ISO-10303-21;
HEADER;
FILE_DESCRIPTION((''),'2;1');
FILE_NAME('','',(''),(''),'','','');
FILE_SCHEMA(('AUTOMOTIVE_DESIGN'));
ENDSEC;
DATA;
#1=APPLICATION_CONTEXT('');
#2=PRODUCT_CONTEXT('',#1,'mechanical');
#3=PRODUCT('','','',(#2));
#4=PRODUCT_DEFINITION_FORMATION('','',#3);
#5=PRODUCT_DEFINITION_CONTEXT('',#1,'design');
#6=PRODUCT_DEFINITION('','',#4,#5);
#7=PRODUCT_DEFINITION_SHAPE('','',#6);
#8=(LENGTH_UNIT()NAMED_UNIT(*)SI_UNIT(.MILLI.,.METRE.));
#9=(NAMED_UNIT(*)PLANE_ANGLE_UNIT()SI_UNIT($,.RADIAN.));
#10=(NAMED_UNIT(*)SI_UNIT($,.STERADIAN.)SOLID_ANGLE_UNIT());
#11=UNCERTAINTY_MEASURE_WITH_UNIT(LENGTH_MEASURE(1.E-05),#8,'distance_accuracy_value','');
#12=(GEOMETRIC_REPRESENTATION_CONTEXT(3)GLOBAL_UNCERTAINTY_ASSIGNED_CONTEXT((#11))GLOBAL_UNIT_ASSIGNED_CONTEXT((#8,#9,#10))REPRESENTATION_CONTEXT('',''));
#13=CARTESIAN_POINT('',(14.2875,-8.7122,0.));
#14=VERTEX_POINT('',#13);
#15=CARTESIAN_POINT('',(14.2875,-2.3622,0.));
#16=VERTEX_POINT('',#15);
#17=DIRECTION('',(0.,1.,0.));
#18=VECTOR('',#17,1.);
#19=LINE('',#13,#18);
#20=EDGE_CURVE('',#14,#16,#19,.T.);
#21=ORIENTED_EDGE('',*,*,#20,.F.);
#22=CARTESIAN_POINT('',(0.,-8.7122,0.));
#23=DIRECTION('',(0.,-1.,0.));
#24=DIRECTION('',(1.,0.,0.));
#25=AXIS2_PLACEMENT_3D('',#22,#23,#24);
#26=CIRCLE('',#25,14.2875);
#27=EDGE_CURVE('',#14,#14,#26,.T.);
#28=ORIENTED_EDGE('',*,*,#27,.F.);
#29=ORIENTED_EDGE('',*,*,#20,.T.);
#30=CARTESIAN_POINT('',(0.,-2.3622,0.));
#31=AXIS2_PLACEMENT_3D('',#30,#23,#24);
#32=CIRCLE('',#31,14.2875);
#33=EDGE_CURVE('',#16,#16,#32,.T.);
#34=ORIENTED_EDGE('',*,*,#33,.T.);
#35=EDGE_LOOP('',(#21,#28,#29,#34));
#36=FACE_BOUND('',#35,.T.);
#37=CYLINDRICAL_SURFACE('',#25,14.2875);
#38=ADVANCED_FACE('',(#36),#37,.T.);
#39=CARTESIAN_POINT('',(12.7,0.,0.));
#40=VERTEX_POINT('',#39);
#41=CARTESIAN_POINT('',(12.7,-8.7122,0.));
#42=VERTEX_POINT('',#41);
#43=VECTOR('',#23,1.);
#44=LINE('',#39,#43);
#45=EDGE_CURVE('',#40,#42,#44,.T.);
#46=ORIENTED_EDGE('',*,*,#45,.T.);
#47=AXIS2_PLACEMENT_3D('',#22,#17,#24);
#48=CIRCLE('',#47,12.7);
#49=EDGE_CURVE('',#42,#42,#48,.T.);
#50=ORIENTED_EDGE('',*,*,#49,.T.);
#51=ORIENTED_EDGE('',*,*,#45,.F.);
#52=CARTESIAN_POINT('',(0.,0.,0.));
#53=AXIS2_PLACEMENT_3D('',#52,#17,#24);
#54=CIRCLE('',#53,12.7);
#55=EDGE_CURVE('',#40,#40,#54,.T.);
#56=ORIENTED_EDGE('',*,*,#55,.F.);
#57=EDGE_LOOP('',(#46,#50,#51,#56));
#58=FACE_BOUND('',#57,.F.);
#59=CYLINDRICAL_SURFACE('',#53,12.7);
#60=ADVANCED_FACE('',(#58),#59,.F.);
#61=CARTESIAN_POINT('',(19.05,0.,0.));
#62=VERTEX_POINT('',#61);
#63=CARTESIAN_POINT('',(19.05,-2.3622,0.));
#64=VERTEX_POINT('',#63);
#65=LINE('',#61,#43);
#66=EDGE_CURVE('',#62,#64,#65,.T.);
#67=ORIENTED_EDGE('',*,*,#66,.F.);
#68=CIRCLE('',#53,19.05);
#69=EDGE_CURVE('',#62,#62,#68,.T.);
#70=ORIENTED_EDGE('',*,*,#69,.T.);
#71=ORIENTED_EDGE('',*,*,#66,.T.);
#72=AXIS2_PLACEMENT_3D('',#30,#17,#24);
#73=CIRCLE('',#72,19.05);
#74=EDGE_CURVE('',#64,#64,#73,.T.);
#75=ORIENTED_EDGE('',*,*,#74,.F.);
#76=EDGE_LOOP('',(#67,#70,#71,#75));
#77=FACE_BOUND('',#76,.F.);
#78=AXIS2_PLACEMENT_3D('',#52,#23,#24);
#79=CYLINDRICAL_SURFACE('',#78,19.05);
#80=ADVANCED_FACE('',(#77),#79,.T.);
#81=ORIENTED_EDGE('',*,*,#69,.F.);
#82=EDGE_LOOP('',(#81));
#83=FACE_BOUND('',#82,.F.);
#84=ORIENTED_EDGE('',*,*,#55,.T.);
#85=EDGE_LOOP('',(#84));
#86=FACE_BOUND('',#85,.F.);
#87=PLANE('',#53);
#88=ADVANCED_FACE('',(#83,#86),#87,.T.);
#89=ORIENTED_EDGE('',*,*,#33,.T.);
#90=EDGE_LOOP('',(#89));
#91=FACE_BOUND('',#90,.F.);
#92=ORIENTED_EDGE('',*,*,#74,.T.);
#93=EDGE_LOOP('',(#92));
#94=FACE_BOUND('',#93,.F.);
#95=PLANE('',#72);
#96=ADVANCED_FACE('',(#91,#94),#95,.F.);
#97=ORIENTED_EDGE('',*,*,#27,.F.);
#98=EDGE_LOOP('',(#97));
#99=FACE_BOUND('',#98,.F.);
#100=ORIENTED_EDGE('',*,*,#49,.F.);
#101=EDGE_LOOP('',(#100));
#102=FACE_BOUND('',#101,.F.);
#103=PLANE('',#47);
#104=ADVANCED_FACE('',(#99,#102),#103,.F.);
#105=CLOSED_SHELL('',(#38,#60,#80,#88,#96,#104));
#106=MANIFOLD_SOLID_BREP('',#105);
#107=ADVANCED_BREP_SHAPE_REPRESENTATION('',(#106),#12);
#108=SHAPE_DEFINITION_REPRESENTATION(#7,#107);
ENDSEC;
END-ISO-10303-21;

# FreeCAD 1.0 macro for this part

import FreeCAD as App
import Part
import Sketcher
Q = App.Units.Quantity


def add_polygon(sketch, points):
    """Adds a closed chain of lines whose ends are joined by coincident constraints."""
    first, n = sketch.GeometryCount, len(points)
    for a, b in zip(points, points[1:] + points[:1]):
        sketch.addGeometry(Part.LineSegment(App.Vector(*a, 0), App.Vector(*b, 0)), False)
    for i in range(n):
        sketch.addConstraint(Sketcher.Constraint("Coincident", first + i, 2, first + (i + 1) % n, 1))

doc = App.newDocument("Part")
body = doc.addObject("PartDesign::Body", "Body")

# Sketch on XY plane
sketch1 = doc.addObject("Sketcher::SketchObject", "Sketch")
body.addObject(sketch1)
sketch1.AttachmentSupport = (doc.XY_Plane, [""])
sketch1.MapMode = "FlatFace"
add_polygon(sketch1, [(19.1, 0), (0, 0), (0, -8.7), (14.8, -8.7), (14.8, -2.4), (19.1, -2.4)])  # lines 0-5
sketch1.addConstraint([
    Sketcher.Constraint("Horizontal", 0),
    Sketcher.Constraint("Vertical", 1),
    Sketcher.Constraint("Horizontal", 2),
    Sketcher.Constraint("Vertical", 3),
    Sketcher.Constraint("Horizontal", 4),
    Sketcher.Constraint("Vertical", 5),
    Sketcher.Constraint("Coincident", 0, 2, -1, 1),
    Sketcher.Constraint("DistanceX", 0, 2, 0, 1, Q("0.75 in")),
    Sketcher.Constraint("DistanceY", 3, 1, 3, 2, Q("0.25 in")),
    Sketcher.Constraint("DistanceX", 4, 1, 4, 2, Q("0.167 in")),
    Sketcher.Constraint("DistanceY", 5, 1, 5, 2, Q("0.093 in")),
])
revolution = doc.addObject("PartDesign::Revolution", "Revolution")
body.addObject(revolution)
revolution.Profile = sketch1
revolution.ReferenceAxis = (sketch1, ["V_Axis"])
revolution.Angle = 360

# Sketch on XZ plane
sketch2 = doc.addObject("Sketcher::SketchObject", "Sketch001")
body.addObject(sketch2)
sketch2.AttachmentSupport = (doc.XZ_Plane, [""])
sketch2.MapMode = "FlatFace"
sketch2.addGeometry(Part.Circle(App.Vector(0, 0, 0), App.Vector(0, 0, 1), 13), False)
sketch2.addConstraint([
    Sketcher.Constraint("Coincident", 0, 3, -1, 1),
    Sketcher.Constraint("Diameter", 0, Q("1 in")),
])
pocket1 = doc.addObject("PartDesign::Pocket", "Pocket")
body.addObject(pocket1)
pocket1.Profile = sketch2
pocket1.Length = Q("1 in")
pocket1.Reversed = True

# Sketch on XZ plane
sketch3 = doc.addObject("Sketcher::SketchObject", "Sketch002")
body.addObject(sketch3)
sketch3.AttachmentSupport = (doc.XZ_Plane, [""])
sketch3.MapMode = "FlatFace"
sketch3.AttachmentOffset = App.Placement(App.Vector(0, 0, 0.343 * 25.4), App.Rotation())
sketch3.addGeometry([
    Part.Circle(App.Vector(0, 0, 0), App.Vector(0, 0, 1), 15),
    Part.Circle(App.Vector(0, 0, 0), App.Vector(0, 0, 1), 14),
], False)
sketch3.addConstraint([
    Sketcher.Constraint("Coincident", 0, 3, -1, 1),
    Sketcher.Constraint("Coincident", 1, 3, -1, 1),
    Sketcher.Constraint("Diameter", 1, Q("1.125 in")),
    Sketcher.Constraint("Diameter", 0, Q("1.166 in")),
])
pocket2 = doc.addObject("PartDesign::Pocket", "Pocket001")
body.addObject(pocket2)
pocket2.Profile = sketch3
pocket2.Length = Q("0.25 in")

doc.recompute()
